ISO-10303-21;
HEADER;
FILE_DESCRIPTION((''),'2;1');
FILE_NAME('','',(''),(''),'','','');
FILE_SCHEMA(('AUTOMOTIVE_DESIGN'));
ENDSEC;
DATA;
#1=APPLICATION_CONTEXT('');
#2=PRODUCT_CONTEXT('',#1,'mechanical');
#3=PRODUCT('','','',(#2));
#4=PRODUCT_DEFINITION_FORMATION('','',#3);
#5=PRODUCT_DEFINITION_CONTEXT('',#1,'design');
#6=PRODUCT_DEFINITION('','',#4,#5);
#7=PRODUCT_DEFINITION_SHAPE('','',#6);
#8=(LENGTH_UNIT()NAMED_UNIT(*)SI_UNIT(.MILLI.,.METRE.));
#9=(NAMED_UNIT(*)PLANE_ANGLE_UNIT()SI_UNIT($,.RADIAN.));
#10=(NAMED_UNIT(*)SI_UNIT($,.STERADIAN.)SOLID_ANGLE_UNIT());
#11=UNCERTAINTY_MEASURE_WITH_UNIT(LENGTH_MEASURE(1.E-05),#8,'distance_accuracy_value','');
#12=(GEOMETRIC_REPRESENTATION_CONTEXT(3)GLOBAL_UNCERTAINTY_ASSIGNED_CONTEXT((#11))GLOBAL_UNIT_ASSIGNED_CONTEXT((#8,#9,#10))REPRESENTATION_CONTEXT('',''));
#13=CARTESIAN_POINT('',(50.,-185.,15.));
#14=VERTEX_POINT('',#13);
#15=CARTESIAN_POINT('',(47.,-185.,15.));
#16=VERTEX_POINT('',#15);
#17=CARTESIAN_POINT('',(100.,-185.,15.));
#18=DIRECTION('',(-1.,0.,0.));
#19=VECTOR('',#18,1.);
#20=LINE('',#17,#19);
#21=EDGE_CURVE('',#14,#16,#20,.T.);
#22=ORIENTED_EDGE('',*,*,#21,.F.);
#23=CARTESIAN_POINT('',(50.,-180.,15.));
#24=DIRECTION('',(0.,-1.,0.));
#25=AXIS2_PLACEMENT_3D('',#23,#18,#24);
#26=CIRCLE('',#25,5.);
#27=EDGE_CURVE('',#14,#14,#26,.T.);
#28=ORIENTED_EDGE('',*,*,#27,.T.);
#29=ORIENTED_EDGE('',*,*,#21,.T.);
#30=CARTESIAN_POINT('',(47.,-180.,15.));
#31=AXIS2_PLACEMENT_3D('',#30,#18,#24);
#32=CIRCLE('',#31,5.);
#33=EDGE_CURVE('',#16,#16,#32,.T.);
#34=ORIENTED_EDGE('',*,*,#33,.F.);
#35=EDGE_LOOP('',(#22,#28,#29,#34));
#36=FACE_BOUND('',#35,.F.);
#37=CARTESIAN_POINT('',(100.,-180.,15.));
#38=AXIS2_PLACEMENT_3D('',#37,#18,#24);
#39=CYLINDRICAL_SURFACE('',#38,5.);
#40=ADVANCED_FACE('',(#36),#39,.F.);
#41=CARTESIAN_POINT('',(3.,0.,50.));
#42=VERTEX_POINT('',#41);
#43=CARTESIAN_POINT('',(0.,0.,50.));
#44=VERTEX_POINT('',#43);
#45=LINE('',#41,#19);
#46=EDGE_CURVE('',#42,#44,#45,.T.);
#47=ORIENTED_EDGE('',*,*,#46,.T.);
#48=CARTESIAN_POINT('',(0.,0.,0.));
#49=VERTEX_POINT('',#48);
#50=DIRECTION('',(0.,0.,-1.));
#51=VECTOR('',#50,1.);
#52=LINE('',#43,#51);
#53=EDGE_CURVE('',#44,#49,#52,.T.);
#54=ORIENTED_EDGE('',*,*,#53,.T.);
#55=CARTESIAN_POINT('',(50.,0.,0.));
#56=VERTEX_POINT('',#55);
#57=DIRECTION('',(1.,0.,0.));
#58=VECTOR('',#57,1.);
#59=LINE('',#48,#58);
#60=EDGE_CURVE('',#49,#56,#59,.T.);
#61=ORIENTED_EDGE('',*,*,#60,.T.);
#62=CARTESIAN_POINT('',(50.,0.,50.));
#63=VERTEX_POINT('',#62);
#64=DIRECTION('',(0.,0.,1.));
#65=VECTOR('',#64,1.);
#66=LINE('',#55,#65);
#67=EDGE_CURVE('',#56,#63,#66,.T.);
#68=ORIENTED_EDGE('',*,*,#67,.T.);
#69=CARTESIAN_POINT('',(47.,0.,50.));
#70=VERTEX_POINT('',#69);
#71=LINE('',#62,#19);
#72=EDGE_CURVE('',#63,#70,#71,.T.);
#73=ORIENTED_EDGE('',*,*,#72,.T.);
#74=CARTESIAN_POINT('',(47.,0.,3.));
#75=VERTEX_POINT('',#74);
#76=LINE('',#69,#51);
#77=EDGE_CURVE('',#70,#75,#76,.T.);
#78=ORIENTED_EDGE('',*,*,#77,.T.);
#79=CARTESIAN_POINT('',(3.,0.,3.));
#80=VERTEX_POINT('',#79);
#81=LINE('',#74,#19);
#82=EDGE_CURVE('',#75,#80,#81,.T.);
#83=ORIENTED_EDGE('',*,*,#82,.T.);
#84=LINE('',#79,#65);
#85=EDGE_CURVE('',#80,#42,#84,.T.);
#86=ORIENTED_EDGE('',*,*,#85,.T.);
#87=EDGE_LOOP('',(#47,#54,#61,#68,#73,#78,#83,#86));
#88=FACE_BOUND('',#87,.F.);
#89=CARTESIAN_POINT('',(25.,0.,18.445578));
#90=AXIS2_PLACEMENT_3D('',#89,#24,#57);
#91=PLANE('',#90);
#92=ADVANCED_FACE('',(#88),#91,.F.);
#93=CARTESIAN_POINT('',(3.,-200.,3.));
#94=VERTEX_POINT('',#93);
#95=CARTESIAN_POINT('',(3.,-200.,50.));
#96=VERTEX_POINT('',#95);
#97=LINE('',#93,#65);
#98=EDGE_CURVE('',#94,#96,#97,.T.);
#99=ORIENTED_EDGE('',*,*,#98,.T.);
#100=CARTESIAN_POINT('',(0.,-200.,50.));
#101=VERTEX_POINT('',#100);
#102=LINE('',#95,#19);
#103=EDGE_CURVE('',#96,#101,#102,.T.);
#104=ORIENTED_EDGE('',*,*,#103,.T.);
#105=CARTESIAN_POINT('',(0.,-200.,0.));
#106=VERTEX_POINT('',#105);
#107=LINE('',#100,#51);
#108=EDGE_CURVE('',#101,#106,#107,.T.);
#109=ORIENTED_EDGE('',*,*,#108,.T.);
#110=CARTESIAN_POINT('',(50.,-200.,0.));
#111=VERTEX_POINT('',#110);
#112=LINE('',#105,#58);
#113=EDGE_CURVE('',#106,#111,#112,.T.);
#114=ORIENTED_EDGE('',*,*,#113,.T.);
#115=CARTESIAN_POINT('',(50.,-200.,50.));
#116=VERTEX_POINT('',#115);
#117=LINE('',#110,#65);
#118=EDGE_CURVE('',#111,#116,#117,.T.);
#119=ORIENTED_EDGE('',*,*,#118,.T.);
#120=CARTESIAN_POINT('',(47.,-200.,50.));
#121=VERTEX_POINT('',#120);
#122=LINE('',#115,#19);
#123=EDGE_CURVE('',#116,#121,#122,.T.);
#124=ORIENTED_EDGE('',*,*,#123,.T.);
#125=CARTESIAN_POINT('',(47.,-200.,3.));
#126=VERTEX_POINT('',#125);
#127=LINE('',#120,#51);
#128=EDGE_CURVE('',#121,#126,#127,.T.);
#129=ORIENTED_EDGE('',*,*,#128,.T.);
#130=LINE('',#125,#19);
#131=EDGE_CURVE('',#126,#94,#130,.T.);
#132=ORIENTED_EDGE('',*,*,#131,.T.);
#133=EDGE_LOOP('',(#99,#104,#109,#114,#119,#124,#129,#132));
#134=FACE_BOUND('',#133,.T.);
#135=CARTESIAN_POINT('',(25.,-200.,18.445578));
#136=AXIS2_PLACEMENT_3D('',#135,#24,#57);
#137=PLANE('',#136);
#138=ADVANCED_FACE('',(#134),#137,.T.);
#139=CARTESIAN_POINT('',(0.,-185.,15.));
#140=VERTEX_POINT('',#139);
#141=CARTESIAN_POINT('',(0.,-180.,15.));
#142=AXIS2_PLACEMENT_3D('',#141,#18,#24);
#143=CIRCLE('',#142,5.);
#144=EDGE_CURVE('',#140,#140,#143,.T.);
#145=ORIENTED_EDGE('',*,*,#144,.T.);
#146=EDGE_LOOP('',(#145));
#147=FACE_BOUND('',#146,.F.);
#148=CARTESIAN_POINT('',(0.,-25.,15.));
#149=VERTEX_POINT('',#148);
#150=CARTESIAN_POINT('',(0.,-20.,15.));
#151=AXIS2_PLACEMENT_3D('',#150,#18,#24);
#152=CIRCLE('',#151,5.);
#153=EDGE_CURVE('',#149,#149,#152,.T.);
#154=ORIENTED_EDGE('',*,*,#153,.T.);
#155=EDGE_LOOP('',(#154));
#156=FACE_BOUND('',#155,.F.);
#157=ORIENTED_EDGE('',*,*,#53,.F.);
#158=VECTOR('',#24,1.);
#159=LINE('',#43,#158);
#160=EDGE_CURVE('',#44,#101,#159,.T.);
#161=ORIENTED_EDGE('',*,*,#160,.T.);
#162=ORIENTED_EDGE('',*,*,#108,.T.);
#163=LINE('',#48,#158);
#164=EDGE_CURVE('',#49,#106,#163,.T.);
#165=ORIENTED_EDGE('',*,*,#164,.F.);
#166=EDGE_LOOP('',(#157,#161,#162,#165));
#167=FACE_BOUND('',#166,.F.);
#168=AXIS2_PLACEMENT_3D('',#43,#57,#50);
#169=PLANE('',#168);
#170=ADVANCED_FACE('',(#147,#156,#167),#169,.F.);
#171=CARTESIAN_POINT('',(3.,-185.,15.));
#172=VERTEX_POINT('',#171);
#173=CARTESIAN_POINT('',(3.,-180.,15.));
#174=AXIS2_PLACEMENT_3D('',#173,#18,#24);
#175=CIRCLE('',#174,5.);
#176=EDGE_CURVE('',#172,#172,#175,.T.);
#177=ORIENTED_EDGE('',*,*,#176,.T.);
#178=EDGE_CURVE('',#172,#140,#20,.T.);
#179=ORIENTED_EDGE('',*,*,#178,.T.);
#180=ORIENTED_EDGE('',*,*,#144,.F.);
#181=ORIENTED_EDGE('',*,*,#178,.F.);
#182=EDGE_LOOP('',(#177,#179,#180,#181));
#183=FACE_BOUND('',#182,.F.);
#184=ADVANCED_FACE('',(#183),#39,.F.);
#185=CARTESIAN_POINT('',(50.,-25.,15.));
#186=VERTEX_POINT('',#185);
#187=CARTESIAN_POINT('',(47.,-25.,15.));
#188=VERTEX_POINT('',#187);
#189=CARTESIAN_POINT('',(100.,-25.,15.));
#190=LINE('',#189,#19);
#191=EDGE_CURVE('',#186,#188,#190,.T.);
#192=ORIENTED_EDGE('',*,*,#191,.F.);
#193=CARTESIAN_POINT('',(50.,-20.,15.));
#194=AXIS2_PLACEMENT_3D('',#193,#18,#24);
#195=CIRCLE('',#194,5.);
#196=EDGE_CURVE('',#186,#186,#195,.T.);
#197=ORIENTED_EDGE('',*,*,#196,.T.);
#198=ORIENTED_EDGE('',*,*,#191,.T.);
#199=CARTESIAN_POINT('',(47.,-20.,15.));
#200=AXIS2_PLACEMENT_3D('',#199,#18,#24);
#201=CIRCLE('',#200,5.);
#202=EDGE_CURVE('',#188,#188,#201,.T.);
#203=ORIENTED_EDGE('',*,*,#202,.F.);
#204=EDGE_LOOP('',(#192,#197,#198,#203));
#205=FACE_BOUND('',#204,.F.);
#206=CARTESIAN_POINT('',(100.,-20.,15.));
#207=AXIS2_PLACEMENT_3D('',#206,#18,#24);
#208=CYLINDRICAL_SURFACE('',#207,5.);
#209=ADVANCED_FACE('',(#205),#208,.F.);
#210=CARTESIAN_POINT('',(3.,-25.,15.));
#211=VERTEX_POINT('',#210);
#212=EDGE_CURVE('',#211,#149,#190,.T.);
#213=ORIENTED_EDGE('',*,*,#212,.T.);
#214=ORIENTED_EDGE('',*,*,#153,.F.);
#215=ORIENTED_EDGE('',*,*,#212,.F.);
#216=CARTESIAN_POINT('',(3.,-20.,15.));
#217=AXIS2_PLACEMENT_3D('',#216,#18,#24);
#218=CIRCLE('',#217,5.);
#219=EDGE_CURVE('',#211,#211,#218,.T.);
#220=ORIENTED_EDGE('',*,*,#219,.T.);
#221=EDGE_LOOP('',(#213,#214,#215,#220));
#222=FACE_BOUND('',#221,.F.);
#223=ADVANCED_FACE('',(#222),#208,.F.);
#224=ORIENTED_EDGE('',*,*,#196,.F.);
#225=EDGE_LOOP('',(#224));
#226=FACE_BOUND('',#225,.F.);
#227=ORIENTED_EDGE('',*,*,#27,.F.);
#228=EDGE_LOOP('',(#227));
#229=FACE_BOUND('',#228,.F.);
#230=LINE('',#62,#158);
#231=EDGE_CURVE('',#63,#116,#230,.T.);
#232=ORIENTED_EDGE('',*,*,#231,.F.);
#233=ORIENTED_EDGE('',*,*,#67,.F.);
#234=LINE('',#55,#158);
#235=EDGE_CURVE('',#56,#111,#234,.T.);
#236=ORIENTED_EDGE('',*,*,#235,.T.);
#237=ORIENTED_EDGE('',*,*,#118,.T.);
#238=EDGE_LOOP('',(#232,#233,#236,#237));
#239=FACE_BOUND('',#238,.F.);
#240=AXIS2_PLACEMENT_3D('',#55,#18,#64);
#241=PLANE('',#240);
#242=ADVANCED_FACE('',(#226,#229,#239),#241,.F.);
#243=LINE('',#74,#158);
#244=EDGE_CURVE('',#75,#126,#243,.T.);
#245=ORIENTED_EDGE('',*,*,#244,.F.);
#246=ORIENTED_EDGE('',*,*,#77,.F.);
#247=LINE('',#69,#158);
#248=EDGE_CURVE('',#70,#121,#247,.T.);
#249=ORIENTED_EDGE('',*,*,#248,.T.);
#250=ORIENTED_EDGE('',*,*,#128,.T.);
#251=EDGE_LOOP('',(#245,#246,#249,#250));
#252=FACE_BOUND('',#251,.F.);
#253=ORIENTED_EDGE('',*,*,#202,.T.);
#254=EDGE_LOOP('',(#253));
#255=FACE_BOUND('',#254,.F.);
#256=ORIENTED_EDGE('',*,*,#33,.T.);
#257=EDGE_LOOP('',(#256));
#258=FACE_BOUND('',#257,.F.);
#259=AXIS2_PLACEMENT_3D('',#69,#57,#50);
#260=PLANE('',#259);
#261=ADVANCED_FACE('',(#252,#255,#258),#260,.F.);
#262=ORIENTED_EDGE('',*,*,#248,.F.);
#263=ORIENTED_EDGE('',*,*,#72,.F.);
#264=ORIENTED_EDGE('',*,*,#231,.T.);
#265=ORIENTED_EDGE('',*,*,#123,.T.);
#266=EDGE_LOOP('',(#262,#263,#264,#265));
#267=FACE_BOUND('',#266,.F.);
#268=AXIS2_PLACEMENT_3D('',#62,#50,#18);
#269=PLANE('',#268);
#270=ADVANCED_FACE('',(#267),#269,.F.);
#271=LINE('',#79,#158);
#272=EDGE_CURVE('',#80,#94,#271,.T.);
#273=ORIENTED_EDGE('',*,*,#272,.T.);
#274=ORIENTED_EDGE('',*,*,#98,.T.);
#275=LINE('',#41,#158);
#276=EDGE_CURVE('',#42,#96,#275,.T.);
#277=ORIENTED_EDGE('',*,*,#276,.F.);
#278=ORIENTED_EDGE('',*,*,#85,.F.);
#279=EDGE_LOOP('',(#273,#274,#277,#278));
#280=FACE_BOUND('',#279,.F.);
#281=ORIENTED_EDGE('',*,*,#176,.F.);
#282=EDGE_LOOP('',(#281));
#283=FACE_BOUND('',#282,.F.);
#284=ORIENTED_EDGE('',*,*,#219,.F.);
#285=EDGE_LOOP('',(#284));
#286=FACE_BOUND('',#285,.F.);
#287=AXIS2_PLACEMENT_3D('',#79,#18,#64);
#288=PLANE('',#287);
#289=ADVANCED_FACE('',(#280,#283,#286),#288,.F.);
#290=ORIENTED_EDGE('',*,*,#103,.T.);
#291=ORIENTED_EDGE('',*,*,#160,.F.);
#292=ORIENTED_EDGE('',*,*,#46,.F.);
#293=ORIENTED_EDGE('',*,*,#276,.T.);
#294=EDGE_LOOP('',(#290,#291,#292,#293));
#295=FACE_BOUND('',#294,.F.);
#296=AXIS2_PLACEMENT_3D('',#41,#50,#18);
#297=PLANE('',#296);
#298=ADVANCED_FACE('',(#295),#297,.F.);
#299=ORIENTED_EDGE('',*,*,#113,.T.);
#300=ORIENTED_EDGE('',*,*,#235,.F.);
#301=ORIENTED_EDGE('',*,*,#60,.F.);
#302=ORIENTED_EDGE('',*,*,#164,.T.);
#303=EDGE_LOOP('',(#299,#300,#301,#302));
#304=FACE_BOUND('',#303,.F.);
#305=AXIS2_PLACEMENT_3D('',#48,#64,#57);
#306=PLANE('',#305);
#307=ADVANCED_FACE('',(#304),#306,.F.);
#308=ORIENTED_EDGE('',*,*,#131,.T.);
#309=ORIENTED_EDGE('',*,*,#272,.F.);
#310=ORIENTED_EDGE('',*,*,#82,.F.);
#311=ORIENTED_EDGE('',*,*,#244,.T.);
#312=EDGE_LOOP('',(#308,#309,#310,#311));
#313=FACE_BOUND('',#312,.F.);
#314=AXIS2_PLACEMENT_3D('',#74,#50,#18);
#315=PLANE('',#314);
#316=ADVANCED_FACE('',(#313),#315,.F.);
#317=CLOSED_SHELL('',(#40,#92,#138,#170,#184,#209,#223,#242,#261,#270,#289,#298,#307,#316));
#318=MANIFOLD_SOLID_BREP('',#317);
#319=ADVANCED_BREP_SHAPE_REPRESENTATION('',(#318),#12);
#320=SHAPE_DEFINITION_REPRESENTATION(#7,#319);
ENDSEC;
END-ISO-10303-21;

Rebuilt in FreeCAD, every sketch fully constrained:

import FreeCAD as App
import Part
import Sketcher
from FreeCAD import Vector
Q = App.Units.Quantity

doc = App.newDocument("Part")
body = doc.addObject("PartDesign::Body", "Body")

sketch1 = doc.addObject("Sketcher::SketchObject", "Sketch")
body.addObject(sketch1)
sketch1.AttachmentSupport = (doc.XZ_Plane, [""])
sketch1.MapMode = "FlatFace"
sketch1.addGeometry([
    Part.LineSegment(Vector(0, 50, 0), Vector(0, 0, 0)),
    Part.LineSegment(Vector(0, 0, 0), Vector(50, 0, 0)),
    Part.LineSegment(Vector(50, 0, 0), Vector(50, 50, 0)),
    Part.LineSegment(Vector(50, 50, 0), Vector(47, 50, 0)),
    Part.LineSegment(Vector(47, 50, 0), Vector(47, 3, 0)),
    Part.LineSegment(Vector(47, 3, 0), Vector(3, 3, 0)),
    Part.LineSegment(Vector(3, 3, 0), Vector(3, 50, 0)),
    Part.LineSegment(Vector(3, 50, 0), Vector(0, 50, 0)),
], False)
sketch1.addConstraint([
    Sketcher.Constraint("Coincident", 0, 2, 1, 1),
    Sketcher.Constraint("Coincident", 1, 2, 2, 1),
    Sketcher.Constraint("Coincident", 2, 2, 3, 1),
    Sketcher.Constraint("Coincident", 3, 2, 4, 1),
    Sketcher.Constraint("Coincident", 4, 2, 5, 1),
    Sketcher.Constraint("Coincident", 5, 2, 6, 1),
    Sketcher.Constraint("Coincident", 6, 2, 7, 1),
    Sketcher.Constraint("Coincident", 7, 2, 0, 1),
    Sketcher.Constraint("Vertical", 0),
    Sketcher.Constraint("Horizontal", 1),
    Sketcher.Constraint("Vertical", 2),
    Sketcher.Constraint("Horizontal", 3),
    Sketcher.Constraint("Vertical", 4),
    Sketcher.Constraint("Horizontal", 5),
    Sketcher.Constraint("Vertical", 6),
    Sketcher.Constraint("Horizontal", 7),
    Sketcher.Constraint("Coincident", 0, 2, -1, 1),
    Sketcher.Constraint("Horizontal", 3, 2, 6, 2),
    Sketcher.Constraint("Equal", 3, 7),
    Sketcher.Constraint("Equal", 1, 0),
    Sketcher.Constraint("DistanceX", 1, 1, 1, 2, Q("50 mm")),
    Sketcher.Constraint("DistanceX", 3, 2, 3, 1, Q("3 mm")),
    Sketcher.Constraint("DistanceY", 4, 2, 4, 1, Q("47 mm")),
])
pad1 = doc.addObject("PartDesign::Pad", "Pad")
body.addObject(pad1)
pad1.Profile = sketch1
pad1.Length = 200

sketch2 = doc.addObject("Sketcher::SketchObject", "Sketch001")
body.addObject(sketch2)
sketch2.AttachmentSupport = (doc.YZ_Plane, [""])
sketch2.MapMode = "FlatFace"
sketch2.AttachmentOffset = App.Placement(Vector(0, 0, 50), App.Rotation())
sketch2.addGeometry([
    Part.Circle(Vector(-180, 15, 0), Vector(0, 0, 1), 5),
    Part.Circle(Vector(-20, 15, 0), Vector(0, 0, 1), 5),
], False)
sketch2.addConstraint([
    Sketcher.Constraint("Equal", 0, 1),
    Sketcher.Constraint("Horizontal", 0, 3, 1, 3),
    Sketcher.Constraint("Diameter", 0, Q("10 mm")),
    Sketcher.Constraint("DistanceX", 0, 3, -1, 1, Q("180 mm")),
    Sketcher.Constraint("DistanceY", -1, 1, 0, 3, Q("15 mm")),
    Sketcher.Constraint("DistanceX", 1, 3, -1, 1, Q("20 mm")),
])
doc.recompute()
hole = doc.addObject("PartDesign::Hole", "Hole")
body.addObject(hole)
hole.Profile = sketch2
hole.ThreadType = "None"
hole.Diameter = 10
hole.DepthType = "Dimension"
hole.Depth = 50
hole.DrillPoint = "Flat"

doc.recompute()
